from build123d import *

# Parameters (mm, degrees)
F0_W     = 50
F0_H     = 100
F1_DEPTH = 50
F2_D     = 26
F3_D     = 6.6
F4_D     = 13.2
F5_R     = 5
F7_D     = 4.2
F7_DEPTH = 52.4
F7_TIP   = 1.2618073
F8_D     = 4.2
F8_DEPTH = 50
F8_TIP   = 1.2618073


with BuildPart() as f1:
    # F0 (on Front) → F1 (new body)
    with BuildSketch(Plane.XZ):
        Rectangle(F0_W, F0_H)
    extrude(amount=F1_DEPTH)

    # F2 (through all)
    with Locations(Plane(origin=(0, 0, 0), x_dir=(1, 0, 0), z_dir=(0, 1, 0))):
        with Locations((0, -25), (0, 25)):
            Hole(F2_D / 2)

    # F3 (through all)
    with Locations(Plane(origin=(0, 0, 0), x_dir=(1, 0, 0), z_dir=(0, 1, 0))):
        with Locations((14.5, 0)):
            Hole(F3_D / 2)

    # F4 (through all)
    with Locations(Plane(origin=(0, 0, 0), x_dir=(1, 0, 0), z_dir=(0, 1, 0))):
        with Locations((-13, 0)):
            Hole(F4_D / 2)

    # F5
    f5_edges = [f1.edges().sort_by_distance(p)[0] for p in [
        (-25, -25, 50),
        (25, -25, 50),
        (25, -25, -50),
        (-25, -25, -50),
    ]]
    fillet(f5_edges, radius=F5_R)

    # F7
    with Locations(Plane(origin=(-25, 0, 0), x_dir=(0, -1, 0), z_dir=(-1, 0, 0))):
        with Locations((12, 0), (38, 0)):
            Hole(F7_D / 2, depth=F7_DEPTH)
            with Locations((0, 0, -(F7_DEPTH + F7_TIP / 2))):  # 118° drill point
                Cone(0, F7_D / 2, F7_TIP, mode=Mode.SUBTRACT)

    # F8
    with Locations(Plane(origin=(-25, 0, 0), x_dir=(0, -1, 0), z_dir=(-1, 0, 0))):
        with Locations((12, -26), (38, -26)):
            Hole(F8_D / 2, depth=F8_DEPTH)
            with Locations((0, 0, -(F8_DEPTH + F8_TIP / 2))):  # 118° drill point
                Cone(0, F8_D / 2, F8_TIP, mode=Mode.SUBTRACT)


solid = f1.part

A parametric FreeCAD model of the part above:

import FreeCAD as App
import Part
import Sketcher

V = App.Vector
Q = App.Units.Quantity


def edges_at(feature, points):
    """Names of the edges that pass closest to the given points."""
    edges = feature.Shape.Edges
    near = lambda p: min(range(len(edges)), key=lambda i: edges[i].distToShape(Part.Vertex(*p))[0])
    return sorted({f"Edge{near(p) + 1}" for p in points})

doc = App.newDocument("Part")
body = doc.addObject("PartDesign::Body", "Body")

# Sketch on XZ plane
sketch1 = doc.addObject("Sketcher::SketchObject", "Sketch")
body.addObject(sketch1)
sketch1.AttachmentSupport = (doc.XZ_Plane, [""])
sketch1.MapMode = "FlatFace"
sketch1.addGeometry([
    Part.LineSegment(V(-25, 50, 0), V(-25, -50, 0)),
    Part.LineSegment(V(-25, -50, 0), V(25, -50, 0)),
    Part.LineSegment(V(25, -50, 0), V(25, 50, 0)),
    Part.LineSegment(V(25, 50, 0), V(-25, 50, 0)),
], False)
sketch1.addConstraint([
    Sketcher.Constraint("Coincident", 0, 2, 1, 1),
    Sketcher.Constraint("Coincident", 1, 2, 2, 1),
    Sketcher.Constraint("Coincident", 2, 2, 3, 1),
    Sketcher.Constraint("Coincident", 3, 2, 0, 1),
    Sketcher.Constraint("Vertical", 0),
    Sketcher.Constraint("Horizontal", 1),
    Sketcher.Constraint("Vertical", 2),
    Sketcher.Constraint("Horizontal", 3),
    Sketcher.Constraint("Symmetric", 0, 2, 2, 2, -1, 1),
    Sketcher.Constraint("DistanceX", 1, 1, 1, 2, Q("50 mm")),
    Sketcher.Constraint("DistanceY", 0, 2, 0, 1, Q("100 mm")),
])
pad1 = doc.addObject("PartDesign::Pad", "Pad")
body.addObject(pad1)
pad1.Profile = sketch1
pad1.Length = 50

# Sketch on XZ plane
sketch2 = doc.addObject("Sketcher::SketchObject", "Sketch001")
body.addObject(sketch2)
sketch2.AttachmentSupport = (doc.XZ_Plane, [""])
sketch2.MapMode = "FlatFace"
sketch2.addGeometry([
    Part.Circle(V(0, 25, 0), V(0, 0, 1), 13),
    Part.Circle(V(0, -25, 0), V(0, 0, 1), 13),
], False)
sketch2.addConstraint([
    Sketcher.Constraint("Equal", 0, 1),
    Sketcher.Constraint("Symmetric", 0, 3, 1, 3, -1, 1),
    Sketcher.Constraint("PointOnObject", 0, 3, -2),
    Sketcher.Constraint("Diameter", 0, Q("26 mm")),
    Sketcher.Constraint("DistanceY", -1, 1, 0, 3, Q("25 mm")),
])
doc.recompute()
hole = doc.addObject("PartDesign::Hole", "Hole")
body.addObject(hole)
hole.Profile = sketch2
hole.ThreadType = "None"
hole.Diameter = 26
hole.DepthType = "ThroughAll"
hole.Reversed = True

# Sketch on XZ plane
sketch3 = doc.addObject("Sketcher::SketchObject", "Sketch002")
body.addObject(sketch3)
sketch3.AttachmentSupport = (doc.XZ_Plane, [""])
sketch3.MapMode = "FlatFace"
sketch3.addGeometry(Part.Circle(V(14.5, 0, 0), V(0, 0, 1), 3.3), False)
sketch3.addConstraint([
    Sketcher.Constraint("PointOnObject", 0, 3, -1),
    Sketcher.Constraint("Diameter", 0, Q("6.6 mm")),
    Sketcher.Constraint("DistanceX", -1, 1, 0, 3, Q("14.5 mm")),
])
doc.recompute()
hole2 = doc.addObject("PartDesign::Hole", "Hole001")
body.addObject(hole2)
hole2.Profile = sketch3
hole2.ThreadType = "None"
hole2.Diameter = 6.6
hole2.DepthType = "ThroughAll"
hole2.Reversed = True

# Sketch on XZ plane
sketch4 = doc.addObject("Sketcher::SketchObject", "Sketch003")
body.addObject(sketch4)
sketch4.AttachmentSupport = (doc.XZ_Plane, [""])
sketch4.MapMode = "FlatFace"
sketch4.addGeometry(Part.Circle(V(-13, 0, 0), V(0, 0, 1), 7), False)
sketch4.addConstraint([
    Sketcher.Constraint("PointOnObject", 0, 3, -1),
    Sketcher.Constraint("Diameter", 0, Q("13.2 mm")),
    Sketcher.Constraint("DistanceX", 0, 3, -1, 1, Q("13 mm")),
])
doc.recompute()
hole3 = doc.addObject("PartDesign::Hole", "Hole002")
body.addObject(hole3)
hole3.Profile = sketch4
hole3.ThreadType = "None"
hole3.Diameter = 13.2
hole3.DepthType = "ThroughAll"
hole3.Reversed = True
doc.recompute()

fillet = doc.addObject("PartDesign::Fillet", "Fillet")
body.addObject(fillet)
fillet.Base = (hole3, edges_at(hole3, [
    (-25, -25, 50),
    (25, -25, 50),
    (25, -25, -50),
    (-25, -25, -50),
]))
fillet.Radius = 5

# Sketch on YZ plane
sketch5 = doc.addObject("Sketcher::SketchObject", "Sketch004")
body.addObject(sketch5)
sketch5.AttachmentSupport = (doc.YZ_Plane, [""])
sketch5.MapMode = "FlatFace"
sketch5.AttachmentOffset = App.Placement(V(0, 0, -25), App.Rotation())
sketch5.addGeometry([
    Part.Circle(V(-12, 0, 0), V(0, 0, 1), 2.1),
    Part.Circle(V(-38, 0, 0), V(0, 0, 1), 2.1),
], False)
sketch5.addConstraint([
    Sketcher.Constraint("Equal", 0, 1),
    Sketcher.Constraint("PointOnObject", 0, 3, -1),
    Sketcher.Constraint("PointOnObject", 1, 3, -1),
    Sketcher.Constraint("Diameter", 0, Q("4.2 mm")),
    Sketcher.Constraint("DistanceX", 0, 3, -1, 1, Q("12 mm")),
    Sketcher.Constraint("DistanceX", 1, 3, -1, 1, Q("38 mm")),
])
doc.recompute()
hole4 = doc.addObject("PartDesign::Hole", "Hole003")
body.addObject(hole4)
hole4.Profile = sketch5
hole4.ThreadType = "None"
hole4.Diameter = 4.2
hole4.DepthType = "Dimension"
hole4.Depth = 52.4
hole4.DrillPoint = "Angled"
hole4.DrillPointAngle = 118
hole4.Reversed = True

# Sketch on YZ plane
sketch6 = doc.addObject("Sketcher::SketchObject", "Sketch005")
body.addObject(sketch6)
sketch6.AttachmentSupport = (doc.YZ_Plane, [""])
sketch6.MapMode = "FlatFace"
sketch6.AttachmentOffset = App.Placement(V(0, 0, -25), App.Rotation())
sketch6.addGeometry([
    Part.Circle(V(-12, -26, 0), V(0, 0, 1), 2.1),
    Part.Circle(V(-38, -26, 0), V(0, 0, 1), 2.1),
], False)
sketch6.addConstraint([
    Sketcher.Constraint("Equal", 0, 1),
    Sketcher.Constraint("Horizontal", 0, 3, 1, 3),
    Sketcher.Constraint("Diameter", 0, Q("4.2 mm")),
    Sketcher.Constraint("DistanceX", 0, 3, -1, 1, Q("12 mm")),
    Sketcher.Constraint("DistanceY", 0, 3, -1, 1, Q("26 mm")),
    Sketcher.Constraint("DistanceX", 1, 3, -1, 1, Q("38 mm")),
])
doc.recompute()
hole5 = doc.addObject("PartDesign::Hole", "Hole004")
body.addObject(hole5)
hole5.Profile = sketch6
hole5.ThreadType = "None"
hole5.Diameter = 4.2
hole5.DepthType = "Dimension"
hole5.Depth = 50
hole5.DrillPoint = "Angled"
hole5.DrillPointAngle = 118
hole5.Reversed = True

doc.recompute()
